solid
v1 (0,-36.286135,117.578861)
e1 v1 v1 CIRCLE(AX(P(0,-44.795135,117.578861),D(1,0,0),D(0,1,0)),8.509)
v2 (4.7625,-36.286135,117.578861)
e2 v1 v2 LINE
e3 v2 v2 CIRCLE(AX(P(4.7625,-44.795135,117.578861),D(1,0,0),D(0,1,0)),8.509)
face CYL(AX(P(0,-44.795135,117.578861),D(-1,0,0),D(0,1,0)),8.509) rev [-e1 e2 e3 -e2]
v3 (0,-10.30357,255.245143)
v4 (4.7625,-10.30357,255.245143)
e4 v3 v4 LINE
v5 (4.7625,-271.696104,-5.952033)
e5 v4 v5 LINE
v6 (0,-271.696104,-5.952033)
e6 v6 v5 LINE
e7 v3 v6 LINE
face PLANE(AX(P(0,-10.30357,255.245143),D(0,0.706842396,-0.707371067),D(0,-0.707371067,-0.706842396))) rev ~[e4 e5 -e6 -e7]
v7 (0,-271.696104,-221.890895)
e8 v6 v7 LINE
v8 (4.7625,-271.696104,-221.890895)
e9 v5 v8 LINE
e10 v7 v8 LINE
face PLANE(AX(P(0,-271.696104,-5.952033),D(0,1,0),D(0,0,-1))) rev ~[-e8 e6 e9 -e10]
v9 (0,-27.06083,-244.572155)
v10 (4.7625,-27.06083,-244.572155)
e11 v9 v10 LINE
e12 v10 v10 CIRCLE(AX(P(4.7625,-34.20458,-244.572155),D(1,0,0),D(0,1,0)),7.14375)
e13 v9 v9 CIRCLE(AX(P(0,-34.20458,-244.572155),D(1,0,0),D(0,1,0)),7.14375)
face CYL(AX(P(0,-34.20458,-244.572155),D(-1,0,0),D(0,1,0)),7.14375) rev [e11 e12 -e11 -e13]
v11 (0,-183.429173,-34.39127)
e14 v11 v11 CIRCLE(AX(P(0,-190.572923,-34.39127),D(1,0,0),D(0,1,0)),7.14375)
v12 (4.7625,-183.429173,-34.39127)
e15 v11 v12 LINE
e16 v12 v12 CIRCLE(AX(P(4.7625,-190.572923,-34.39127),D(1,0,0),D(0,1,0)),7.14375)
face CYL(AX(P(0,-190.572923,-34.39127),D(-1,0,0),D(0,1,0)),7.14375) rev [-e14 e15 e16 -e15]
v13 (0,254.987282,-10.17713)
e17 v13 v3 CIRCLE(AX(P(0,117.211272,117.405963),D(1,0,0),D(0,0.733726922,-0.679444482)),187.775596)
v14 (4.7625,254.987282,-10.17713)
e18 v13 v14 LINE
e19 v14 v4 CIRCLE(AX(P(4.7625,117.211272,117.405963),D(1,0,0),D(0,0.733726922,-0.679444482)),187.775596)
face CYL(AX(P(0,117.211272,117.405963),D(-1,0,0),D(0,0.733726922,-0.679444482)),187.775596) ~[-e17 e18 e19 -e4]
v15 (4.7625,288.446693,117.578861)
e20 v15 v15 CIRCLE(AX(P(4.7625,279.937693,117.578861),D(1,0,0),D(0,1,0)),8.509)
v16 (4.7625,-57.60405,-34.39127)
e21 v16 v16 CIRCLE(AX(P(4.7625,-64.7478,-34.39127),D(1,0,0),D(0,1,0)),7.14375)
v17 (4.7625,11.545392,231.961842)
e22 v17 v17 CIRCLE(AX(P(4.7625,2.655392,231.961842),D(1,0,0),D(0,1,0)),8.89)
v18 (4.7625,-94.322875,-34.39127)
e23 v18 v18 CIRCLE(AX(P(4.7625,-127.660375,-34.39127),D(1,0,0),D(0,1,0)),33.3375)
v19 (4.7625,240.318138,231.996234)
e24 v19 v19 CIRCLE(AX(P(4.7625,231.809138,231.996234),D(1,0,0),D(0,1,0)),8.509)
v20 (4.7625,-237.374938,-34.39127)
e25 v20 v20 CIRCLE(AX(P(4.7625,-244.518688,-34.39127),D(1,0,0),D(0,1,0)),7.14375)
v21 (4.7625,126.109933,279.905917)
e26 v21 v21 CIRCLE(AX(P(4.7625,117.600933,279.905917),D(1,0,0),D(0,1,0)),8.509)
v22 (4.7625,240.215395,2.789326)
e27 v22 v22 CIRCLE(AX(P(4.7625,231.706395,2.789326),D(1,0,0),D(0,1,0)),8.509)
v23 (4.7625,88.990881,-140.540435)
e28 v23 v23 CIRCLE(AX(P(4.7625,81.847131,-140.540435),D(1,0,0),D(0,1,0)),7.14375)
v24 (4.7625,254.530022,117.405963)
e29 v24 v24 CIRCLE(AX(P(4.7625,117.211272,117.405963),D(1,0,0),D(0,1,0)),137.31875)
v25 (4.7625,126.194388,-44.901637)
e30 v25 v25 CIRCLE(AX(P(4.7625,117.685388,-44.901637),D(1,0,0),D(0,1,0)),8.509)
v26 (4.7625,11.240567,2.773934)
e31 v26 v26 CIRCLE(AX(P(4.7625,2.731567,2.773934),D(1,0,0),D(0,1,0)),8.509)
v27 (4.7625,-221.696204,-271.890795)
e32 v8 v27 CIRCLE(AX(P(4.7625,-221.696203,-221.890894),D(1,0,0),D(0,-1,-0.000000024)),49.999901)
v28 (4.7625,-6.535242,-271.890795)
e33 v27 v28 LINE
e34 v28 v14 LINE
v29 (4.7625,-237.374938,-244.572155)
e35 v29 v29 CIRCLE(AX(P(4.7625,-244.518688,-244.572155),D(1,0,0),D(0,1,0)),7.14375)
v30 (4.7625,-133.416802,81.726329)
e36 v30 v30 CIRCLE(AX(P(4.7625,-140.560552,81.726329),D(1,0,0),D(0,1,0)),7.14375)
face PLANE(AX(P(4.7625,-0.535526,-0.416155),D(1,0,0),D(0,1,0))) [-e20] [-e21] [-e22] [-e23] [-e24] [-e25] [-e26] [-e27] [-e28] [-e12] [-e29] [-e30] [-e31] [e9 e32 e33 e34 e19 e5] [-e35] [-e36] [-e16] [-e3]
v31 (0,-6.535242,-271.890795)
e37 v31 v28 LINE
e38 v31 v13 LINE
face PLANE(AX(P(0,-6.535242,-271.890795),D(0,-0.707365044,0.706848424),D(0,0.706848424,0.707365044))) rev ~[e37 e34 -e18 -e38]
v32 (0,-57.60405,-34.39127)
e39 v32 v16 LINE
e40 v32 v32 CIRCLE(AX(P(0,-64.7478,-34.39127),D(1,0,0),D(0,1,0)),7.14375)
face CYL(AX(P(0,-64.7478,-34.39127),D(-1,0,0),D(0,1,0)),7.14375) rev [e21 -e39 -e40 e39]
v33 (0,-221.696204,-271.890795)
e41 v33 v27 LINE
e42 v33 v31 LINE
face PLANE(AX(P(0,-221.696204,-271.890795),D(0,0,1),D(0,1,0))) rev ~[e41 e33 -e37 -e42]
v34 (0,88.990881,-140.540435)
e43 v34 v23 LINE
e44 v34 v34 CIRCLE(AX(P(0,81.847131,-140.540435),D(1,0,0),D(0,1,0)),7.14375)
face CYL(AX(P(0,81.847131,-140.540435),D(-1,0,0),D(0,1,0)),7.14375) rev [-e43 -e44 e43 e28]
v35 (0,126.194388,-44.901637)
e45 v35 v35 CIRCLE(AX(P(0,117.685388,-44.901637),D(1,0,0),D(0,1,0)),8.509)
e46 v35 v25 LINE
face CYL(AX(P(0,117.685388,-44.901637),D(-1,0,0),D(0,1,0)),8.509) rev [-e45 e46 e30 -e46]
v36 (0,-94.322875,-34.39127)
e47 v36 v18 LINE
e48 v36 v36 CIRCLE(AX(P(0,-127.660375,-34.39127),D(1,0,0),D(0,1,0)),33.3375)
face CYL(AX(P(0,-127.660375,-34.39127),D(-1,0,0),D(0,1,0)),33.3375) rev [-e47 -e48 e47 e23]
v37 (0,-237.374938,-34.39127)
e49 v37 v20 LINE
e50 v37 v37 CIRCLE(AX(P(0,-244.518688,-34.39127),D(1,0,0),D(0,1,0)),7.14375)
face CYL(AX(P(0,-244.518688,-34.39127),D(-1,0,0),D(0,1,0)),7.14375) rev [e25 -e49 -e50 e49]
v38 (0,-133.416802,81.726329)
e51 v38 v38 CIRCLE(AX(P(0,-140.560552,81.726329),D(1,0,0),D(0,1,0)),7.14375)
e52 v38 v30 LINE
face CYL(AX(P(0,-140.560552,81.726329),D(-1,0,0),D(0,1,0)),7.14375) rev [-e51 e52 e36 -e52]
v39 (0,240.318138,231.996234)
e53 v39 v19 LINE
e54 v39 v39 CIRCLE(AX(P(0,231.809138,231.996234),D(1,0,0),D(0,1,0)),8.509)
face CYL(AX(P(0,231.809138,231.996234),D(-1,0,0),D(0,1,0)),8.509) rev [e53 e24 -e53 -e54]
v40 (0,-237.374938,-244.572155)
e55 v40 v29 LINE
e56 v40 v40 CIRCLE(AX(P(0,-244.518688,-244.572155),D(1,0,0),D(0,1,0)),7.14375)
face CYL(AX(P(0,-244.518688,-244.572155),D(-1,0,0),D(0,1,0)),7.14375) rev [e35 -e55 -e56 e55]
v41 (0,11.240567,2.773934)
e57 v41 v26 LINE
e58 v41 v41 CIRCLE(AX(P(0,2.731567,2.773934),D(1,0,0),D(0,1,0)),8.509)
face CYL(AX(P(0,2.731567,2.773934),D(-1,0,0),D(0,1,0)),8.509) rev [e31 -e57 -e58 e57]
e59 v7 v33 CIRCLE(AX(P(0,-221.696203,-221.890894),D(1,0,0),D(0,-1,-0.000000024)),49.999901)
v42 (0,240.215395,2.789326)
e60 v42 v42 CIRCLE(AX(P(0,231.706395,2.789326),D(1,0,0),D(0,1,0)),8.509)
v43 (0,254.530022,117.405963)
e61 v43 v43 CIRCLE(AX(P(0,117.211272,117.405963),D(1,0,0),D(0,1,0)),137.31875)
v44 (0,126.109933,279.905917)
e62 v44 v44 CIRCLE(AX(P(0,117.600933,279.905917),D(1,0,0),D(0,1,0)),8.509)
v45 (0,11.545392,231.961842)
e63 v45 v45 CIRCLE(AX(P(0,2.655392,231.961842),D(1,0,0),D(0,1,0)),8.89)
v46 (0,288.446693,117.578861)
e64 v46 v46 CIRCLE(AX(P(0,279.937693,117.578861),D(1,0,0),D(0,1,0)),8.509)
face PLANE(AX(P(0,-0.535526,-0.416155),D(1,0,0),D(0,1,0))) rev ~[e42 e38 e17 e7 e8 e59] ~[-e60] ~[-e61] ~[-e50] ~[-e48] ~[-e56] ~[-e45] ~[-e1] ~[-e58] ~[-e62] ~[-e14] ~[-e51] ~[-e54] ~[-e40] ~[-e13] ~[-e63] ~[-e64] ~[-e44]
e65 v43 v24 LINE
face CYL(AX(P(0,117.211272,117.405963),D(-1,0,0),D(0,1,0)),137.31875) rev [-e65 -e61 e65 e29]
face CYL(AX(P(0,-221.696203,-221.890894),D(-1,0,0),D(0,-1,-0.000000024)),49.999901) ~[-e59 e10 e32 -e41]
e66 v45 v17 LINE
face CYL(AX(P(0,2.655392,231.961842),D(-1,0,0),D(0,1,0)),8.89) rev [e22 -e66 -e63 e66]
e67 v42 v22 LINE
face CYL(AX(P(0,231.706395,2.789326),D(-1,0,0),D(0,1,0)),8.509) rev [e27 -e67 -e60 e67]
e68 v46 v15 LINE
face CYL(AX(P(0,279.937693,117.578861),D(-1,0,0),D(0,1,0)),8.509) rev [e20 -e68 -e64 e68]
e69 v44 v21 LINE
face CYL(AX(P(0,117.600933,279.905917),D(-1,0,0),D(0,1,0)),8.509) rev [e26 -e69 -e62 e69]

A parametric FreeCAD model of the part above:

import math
import FreeCAD as App
import Part
import Sketcher
Q = App.Units.Quantity

doc = App.newDocument("Part")
body = doc.addObject("PartDesign::Body", "Body")

# Sketch on YZ plane
sketch1 = body.newObject("Sketcher::SketchObject", "Sketch")
sketch1.AttachmentSupport = (doc.getObject("YZ_Plane"), [""])
sketch1.MapMode = "FlatFace"
sketch1.addGeometry([
    Part.LineSegment(App.Vector(-272, -6, 0), App.Vector(-272, -222, 0)),  # 0
    Part.ArcOfCircle(Part.Circle(App.Vector(-222, -222, 0), App.Vector(0, 0, 1), 50), math.radians(-180), math.radians(-90)),  # 1
    Part.LineSegment(App.Vector(-222, -272, 0), App.Vector(-7, -272, 0)),  # 2
    Part.LineSegment(App.Vector(-7, -272, 0), App.Vector(255, -10, 0)),  # 3
    Part.ArcOfCircle(Part.Circle(App.Vector(117, 117, 0), App.Vector(0, 0, 1), 188), math.radians(-43), math.radians(133)),  # 4
    Part.LineSegment(App.Vector(-10, 255, 0), App.Vector(-272, -6, 0)),  # 5
    Part.Circle(App.Vector(-245, -245, 0), App.Vector(0, 0, 1), 7),  # 6
    Part.Circle(App.Vector(-34, -245, 0), App.Vector(0, 0, 1), 7),  # 7
    Part.Circle(App.Vector(-245, -34, 0), App.Vector(0, 0, 1), 7),  # 8
    Part.Circle(App.Vector(-191, -34, 0), App.Vector(0, 0, 1), 7),  # 9
    Part.Circle(App.Vector(-128, -34, 0), App.Vector(0, 0, 1), 33),  # 10
    Part.Circle(App.Vector(-65, -34, 0), App.Vector(0, 0, 1), 7),  # 11
    Part.Circle(App.Vector(3, 3, 0), App.Vector(0, 0, 1), 9),  # 12
    Part.Circle(App.Vector(82, -141, 0), App.Vector(0, 0, 1), 7),  # 13
    Part.Circle(App.Vector(118, -45, 0), App.Vector(0, 0, 1), 9),  # 14
    Part.Circle(App.Vector(232, 3, 0), App.Vector(0, 0, 1), 9),  # 15
    Part.Circle(App.Vector(-141, 82, 0), App.Vector(0, 0, 1), 7),  # 16
    Part.Circle(App.Vector(-45, 118, 0), App.Vector(0, 0, 1), 9),  # 17
    Part.Circle(App.Vector(3, 232, 0), App.Vector(0, 0, 1), 9),  # 18
    Part.Circle(App.Vector(117, 117, 0), App.Vector(0, 0, 1), 137),  # 19
    Part.Circle(App.Vector(280, 118, 0), App.Vector(0, 0, 1), 9),  # 20
    Part.Circle(App.Vector(118, 280, 0), App.Vector(0, 0, 1), 9),  # 21
    Part.Circle(App.Vector(232, 232, 0), App.Vector(0, 0, 1), 9),  # 22
], False)
sketch1.addConstraint([
    Sketcher.Constraint("Tangent", 0, 2, 1, 1),
    Sketcher.Constraint("Tangent", 1, 2, 2, 1),
    Sketcher.Constraint("Coincident", 2, 2, 3, 1),
    Sketcher.Constraint("Coincident", 3, 2, 4, 1),
    Sketcher.Constraint("Coincident", 4, 2, 5, 1),
    Sketcher.Constraint("Coincident", 5, 2, 0, 1),
    Sketcher.Constraint("Vertical", 0),
    Sketcher.Constraint("Horizontal", 2),
    Sketcher.Constraint("Coincident", 19, 3, 4, 3),
    Sketcher.Constraint("Equal", 6, 7),
    Sketcher.Constraint("Equal", 7, 8),
    Sketcher.Constraint("Equal", 8, 9),
    Sketcher.Constraint("Equal", 9, 11),
    Sketcher.Constraint("Equal", 11, 13),
    Sketcher.Constraint("Equal", 12, 14),
    Sketcher.Constraint("Equal", 14, 15),
    Sketcher.Constraint("Equal", 13, 16),
    Sketcher.Constraint("Equal", 15, 17),
    Sketcher.Constraint("Equal", 17, 20),
    Sketcher.Constraint("Equal", 20, 21),
    Sketcher.Constraint("Equal", 21, 22),
    Sketcher.Constraint("Horizontal", 6, 3, 7, 3),
    Sketcher.Constraint("Horizontal", 8, 3, 9, 3),
    Sketcher.Constraint("Horizontal", 9, 3, 10, 3),
    Sketcher.Constraint("Horizontal", 10, 3, 11, 3),
    Sketcher.Constraint("Horizontal", 17, 3, 20, 3),
    Sketcher.Constraint("Vertical", 6, 3, 8, 3),
    Sketcher.Constraint("Diameter", 18, Q("0.7 in")),
    Sketcher.Constraint("Diameter", 12, Q("0.67 in")),
    Sketcher.Constraint("Diameter", 6, Q("0.5625 in")),
    Sketcher.Constraint("Diameter", 10, Q("2.625 in")),
    Sketcher.Constraint("Diameter", 19, Q("10.8125 in")),
    Sketcher.Constraint("Radius", 1, Q("1.9685 in")),
    Sketcher.Constraint("Radius", 4, Q("187.775596 mm")),
    Sketcher.Constraint("DistanceX", 2, 1, 2, 2, Q("215.160962 mm")),
    Sketcher.Constraint("DistanceY", 0, 2, 0, 1, Q("215.938862 mm")),
    Sketcher.Constraint("DistanceX", 11, 3, -1, 1, Q("64.7478 mm")),
    Sketcher.Constraint("DistanceY", 13, 3, 14, 3, Q("95.638798 mm")),
    Sketcher.Constraint("DistanceY", 14, 3, 4, 3, Q("162.3076 mm")),
    Sketcher.Constraint("DistanceY", 10, 3, 16, 3, Q("116.117599 mm")),
    Sketcher.Constraint("DistanceY", 4, 3, 17, 3, Q("0.172898 mm")),
    Sketcher.Constraint("DistanceX", 15, 3, 20, 3, Q("48.231298 mm")),
    Sketcher.Constraint("DistanceX", 18, 3, 20, 3, Q("277.282301 mm")),
    Sketcher.Constraint("DistanceY", 18, 3, 4, 2, Q("23.283301 mm")),
    Sketcher.Constraint("DistanceX", -1, 1, 4, 3, Q("117.211272 mm")),
    Sketcher.Constraint("DistanceX", 6, 3, -1, 1, Q("244.518688 mm")),
    Sketcher.Constraint("DistanceX", 7, 3, -1, 1, Q("34.20458 mm")),
    Sketcher.Constraint("DistanceY", 8, 3, -1, 1, Q("34.39127 mm")),
    Sketcher.Constraint("DistanceX", -1, 1, 13, 3, Q("81.847131 mm")),
    Sketcher.Constraint("DistanceX", -1, 1, 14, 3, Q("117.685388 mm")),
    Sketcher.Constraint("DistanceX", 16, 3, -1, 1, Q("140.560552 mm")),
    Sketcher.Constraint("DistanceY", -1, 1, 17, 3, Q("117.578861 mm")),
    Sketcher.Constraint("DistanceX", -1, 1, 18, 3, Q("2.655392 mm")),
    Sketcher.Constraint("DistanceY", -1, 1, 18, 3, Q("231.961842 mm")),
    Sketcher.Constraint("DistanceX", -1, 1, 3, 2, Q("254.987282 mm")),
    Sketcher.Constraint("DistanceY", 6, 3, 1, 3, Q("22.681261 mm")),
    Sketcher.Constraint("DistanceX", 1, 3, 9, 3, Q("31.12328 mm")),
    Sketcher.Constraint("DistanceX", 10, 3, 12, 3, Q("130.391942 mm")),
    Sketcher.Constraint("DistanceY", 12, 3, 4, 3, Q("114.632029 mm")),
    Sketcher.Constraint("DistanceX", 9, 3, 12, 3, Q("193.30449 mm")),
    Sketcher.Constraint("DistanceY", 7, 3, 13, 3, Q("104.03172 mm")),
    Sketcher.Constraint("DistanceX", 12, 3, 14, 3, Q("114.953821 mm")),
    Sketcher.Constraint("DistanceY", 13, 3, 15, 3, Q("143.329761 mm")),
    Sketcher.Constraint("DistanceX", 10, 3, 17, 3, Q("82.86524 mm")),
    Sketcher.Constraint("DistanceX", 18, 3, 21, 3, Q("114.945541 mm")),
    Sketcher.Constraint("DistanceY", 19, 3, 22, 3, Q("114.590271 mm")),
    Sketcher.Constraint("DistanceY", -1, 1, 21, 3, Q("279.905917 mm")),
    Sketcher.Constraint("DistanceX", -1, 1, 22, 3, Q("231.809138 mm")),
])
pad1 = body.newObject("PartDesign::Pad", "Pad")
pad1.Profile = sketch1
pad1.Length = Q("0.1875 in")

doc.recompute()
